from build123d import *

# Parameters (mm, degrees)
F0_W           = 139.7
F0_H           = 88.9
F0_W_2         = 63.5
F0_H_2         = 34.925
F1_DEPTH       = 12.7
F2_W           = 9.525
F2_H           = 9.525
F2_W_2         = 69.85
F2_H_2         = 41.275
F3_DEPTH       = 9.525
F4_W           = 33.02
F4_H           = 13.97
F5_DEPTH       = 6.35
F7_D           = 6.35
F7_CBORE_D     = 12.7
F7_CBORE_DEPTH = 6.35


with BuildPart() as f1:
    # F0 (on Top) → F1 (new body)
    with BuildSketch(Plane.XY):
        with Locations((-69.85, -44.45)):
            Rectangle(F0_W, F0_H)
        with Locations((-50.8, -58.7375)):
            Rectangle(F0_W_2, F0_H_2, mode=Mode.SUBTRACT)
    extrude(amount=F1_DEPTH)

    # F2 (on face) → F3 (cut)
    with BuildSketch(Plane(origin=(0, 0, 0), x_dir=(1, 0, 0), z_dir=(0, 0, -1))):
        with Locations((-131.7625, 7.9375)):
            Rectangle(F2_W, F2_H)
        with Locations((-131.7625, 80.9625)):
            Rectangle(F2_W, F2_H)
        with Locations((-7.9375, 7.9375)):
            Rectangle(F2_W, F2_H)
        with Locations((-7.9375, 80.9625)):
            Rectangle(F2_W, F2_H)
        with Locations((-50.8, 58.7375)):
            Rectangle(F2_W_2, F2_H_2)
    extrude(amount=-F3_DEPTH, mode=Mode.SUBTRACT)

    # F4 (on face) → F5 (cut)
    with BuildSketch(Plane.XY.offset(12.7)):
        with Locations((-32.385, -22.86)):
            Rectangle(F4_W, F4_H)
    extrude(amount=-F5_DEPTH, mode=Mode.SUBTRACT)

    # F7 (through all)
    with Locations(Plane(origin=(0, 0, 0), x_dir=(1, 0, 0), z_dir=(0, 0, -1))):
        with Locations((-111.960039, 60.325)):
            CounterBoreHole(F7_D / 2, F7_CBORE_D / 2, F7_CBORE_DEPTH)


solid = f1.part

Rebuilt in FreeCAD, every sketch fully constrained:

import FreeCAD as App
import Part
import Sketcher
Q = App.Units.Quantity


def add_polygon(sketch, points):
    """Adds a closed chain of lines whose ends are joined by coincident constraints."""
    first, n = sketch.GeometryCount, len(points)
    for a, b in zip(points, points[1:] + points[:1]):
        sketch.addGeometry(Part.LineSegment(App.Vector(*a, 0), App.Vector(*b, 0)), False)
    for i in range(n):
        sketch.addConstraint(Sketcher.Constraint("Coincident", first + i, 2, first + (i + 1) % n, 1))

doc = App.newDocument("Part")
body = doc.addObject("PartDesign::Body", "Body")

# Sketch on XY plane
sketch1 = body.newObject("Sketcher::SketchObject", "Sketch")
sketch1.AttachmentSupport = (doc.getObject("XY_Plane"), [""])
sketch1.MapMode = "FlatFace"
add_polygon(sketch1, [(-140, 0), (-140, -89), (0, -89), (0, 0)])  # lines 0-3
add_polygon(sketch1, [(-19, -76), (-83, -76), (-83, -41), (-19, -41)])  # lines 4-7
sketch1.addConstraint([
    Sketcher.Constraint("Vertical", 0),
    Sketcher.Constraint("Horizontal", 1),
    Sketcher.Constraint("Vertical", 2),
    Sketcher.Constraint("Horizontal", 3),
    Sketcher.Constraint("Horizontal", 4),
    Sketcher.Constraint("Vertical", 5),
    Sketcher.Constraint("Horizontal", 6),
    Sketcher.Constraint("Vertical", 7),
    Sketcher.Constraint("Coincident", 2, 2, -1, 1),
    Sketcher.Constraint("DistanceX", 1, 1, 1, 2, Q("5.5 in")),
    Sketcher.Constraint("DistanceX", 4, 2, 4, 1, Q("2.5 in")),
    Sketcher.Constraint("DistanceY", 0, 2, 0, 1, Q("3.5 in")),
    Sketcher.Constraint("DistanceY", 4, 2, -1, 1, Q("3 in")),
    Sketcher.Constraint("DistanceY", 5, 1, 5, 2, Q("1.375 in")),
    Sketcher.Constraint("DistanceX", 4, 2, -1, 1, Q("3.25 in")),
])
pad1 = body.newObject("PartDesign::Pad", "Pad")
pad1.Profile = sketch1
pad1.Length = Q("0.5 in")

# Sketch on XY plane
sketch2 = body.newObject("Sketcher::SketchObject", "Sketch001")
sketch2.AttachmentSupport = (doc.getObject("XY_Plane"), [""])
sketch2.MapMode = "FlatFace"
add_polygon(sketch2, [(-137, -13), (-137, -3), (-127, -3), (-127, -13)])  # lines 0-3
add_polygon(sketch2, [(-137, -86), (-137, -76), (-127, -76), (-127, -86)])  # lines 4-7
add_polygon(sketch2, [(-13, -13), (-13, -3), (-3, -3), (-3, -13)])  # lines 8-11
add_polygon(sketch2, [(-13, -86), (-13, -76), (-3, -76), (-3, -86)])  # lines 12-15
add_polygon(sketch2, [(-86, -79), (-86, -38), (-16, -38), (-16, -79)])  # lines 16-19
sketch2.addConstraint([
    Sketcher.Constraint("Vertical", 0),
    Sketcher.Constraint("Horizontal", 1),
    Sketcher.Constraint("Vertical", 2),
    Sketcher.Constraint("Horizontal", 3),
    Sketcher.Constraint("Vertical", 4),
    Sketcher.Constraint("Horizontal", 5),
    Sketcher.Constraint("Vertical", 6),
    Sketcher.Constraint("Horizontal", 7),
    Sketcher.Constraint("Vertical", 8),
    Sketcher.Constraint("Horizontal", 9),
    Sketcher.Constraint("Vertical", 10),
    Sketcher.Constraint("Horizontal", 11),
    Sketcher.Constraint("Vertical", 12),
    Sketcher.Constraint("Horizontal", 13),
    Sketcher.Constraint("Vertical", 14),
    Sketcher.Constraint("Horizontal", 15),
    Sketcher.Constraint("Vertical", 16),
    Sketcher.Constraint("Horizontal", 17),
    Sketcher.Constraint("Vertical", 18),
    Sketcher.Constraint("Horizontal", 19),
    Sketcher.Constraint("Horizontal", 1, 2, 8, 2),
    Sketcher.Constraint("Horizontal", 3, 2, 10, 2),
    Sketcher.Constraint("Horizontal", 5, 2, 12, 2),
    Sketcher.Constraint("Horizontal", 7, 2, 14, 2),
    Sketcher.Constraint("Vertical", 3, 2, 4, 2),
    Sketcher.Constraint("Vertical", 2, 2, 5, 2),
    Sketcher.Constraint("Vertical", 11, 2, 12, 2),
    Sketcher.Constraint("Vertical", 10, 2, 13, 2),
    Sketcher.Constraint("Equal", 7, 9),
    Sketcher.Constraint("Equal", 15, 0),
    Sketcher.Constraint("Equal", 2, 4),
    Sketcher.Constraint("DistanceX", 1, 2, -1, 1, Q("5 in")),
    Sketcher.Constraint("DistanceY", 4, 2, -1, 1, Q("3 in")),
    Sketcher.Constraint("DistanceY", 16, 2, 2, 2, Q("1 in")),
    Sketcher.Constraint("DistanceX", 3, 2, 16, 2, Q("2 in")),
    Sketcher.Constraint("DistanceX", 17, 1, 17, 2, Q("2.75 in")),
    Sketcher.Constraint("DistanceY", 2, 2, -1, 1, Q("0.5 in")),
    Sketcher.Constraint("DistanceX", 8, 2, -1, 1, Q("0.5 in")),
    Sketcher.Constraint("DistanceX", 17, 2, 10, 2, Q("0.5 in")),
    Sketcher.Constraint("DistanceY", 16, 1, 16, 2, Q("1.625 in")),
])
pocket1 = body.newObject("PartDesign::Pocket", "Pocket")
pocket1.Profile = sketch2
pocket1.Length = Q("0.375 in")
pocket1.Reversed = True

# Sketch on XY plane
sketch3 = body.newObject("Sketcher::SketchObject", "Sketch002")
sketch3.AttachmentSupport = (doc.getObject("XY_Plane"), [""])
sketch3.MapMode = "FlatFace"
sketch3.AttachmentOffset = App.Placement(App.Vector(0, 0, 0.5 * 25.4), App.Rotation())
add_polygon(sketch3, [(-49, -16), (-49, -30), (-16, -30), (-16, -16)])  # lines 0-3
sketch3.addConstraint([
    Sketcher.Constraint("Vertical", 0),
    Sketcher.Constraint("Horizontal", 1),
    Sketcher.Constraint("Vertical", 2),
    Sketcher.Constraint("Horizontal", 3),
    Sketcher.Constraint("DistanceX", 1, 1, 1, 2, Q("1.3 in")),
    Sketcher.Constraint("DistanceY", 0, 2, 0, 1, Q("0.55 in")),
    Sketcher.Constraint("DistanceX", 0, 2, -1, 1, Q("1.925 in")),
    Sketcher.Constraint("DistanceY", 0, 2, -1, 1, Q("1.175 in")),
])
pocket2 = body.newObject("PartDesign::Pocket", "Pocket001")
pocket2.Profile = sketch3
pocket2.Length = Q("0.25 in")

# Sketch on XY plane
sketch4 = body.newObject("Sketcher::SketchObject", "Sketch003")
sketch4.AttachmentSupport = (doc.getObject("XY_Plane"), [""])
sketch4.MapMode = "FlatFace"
sketch4.addGeometry(Part.Circle(App.Vector(-112, -60.3, 0), App.Vector(0, 0, 1), 3.2), False)
sketch4.addConstraint([
    Sketcher.Constraint("Diameter", 0, Q("0.25 in")),
    Sketcher.Constraint("DistanceY", 0, 3, -1, 1, Q("2.375 in")),
    Sketcher.Constraint("DistanceX", 0, 3, -1, 1, 111.960039),
])
doc.recompute()
hole = body.newObject("PartDesign::Hole", "Hole")
hole.Profile = sketch4
hole.ThreadType = "None"
hole.Diameter = Q("0.25 in")
hole.DepthType = "ThroughAll"
hole.HoleCutType = "Counterbore"
hole.HoleCutDiameter = Q("0.5 in")
hole.HoleCutDepth = Q("0.25 in")
hole.Reversed = True

doc.recompute()
